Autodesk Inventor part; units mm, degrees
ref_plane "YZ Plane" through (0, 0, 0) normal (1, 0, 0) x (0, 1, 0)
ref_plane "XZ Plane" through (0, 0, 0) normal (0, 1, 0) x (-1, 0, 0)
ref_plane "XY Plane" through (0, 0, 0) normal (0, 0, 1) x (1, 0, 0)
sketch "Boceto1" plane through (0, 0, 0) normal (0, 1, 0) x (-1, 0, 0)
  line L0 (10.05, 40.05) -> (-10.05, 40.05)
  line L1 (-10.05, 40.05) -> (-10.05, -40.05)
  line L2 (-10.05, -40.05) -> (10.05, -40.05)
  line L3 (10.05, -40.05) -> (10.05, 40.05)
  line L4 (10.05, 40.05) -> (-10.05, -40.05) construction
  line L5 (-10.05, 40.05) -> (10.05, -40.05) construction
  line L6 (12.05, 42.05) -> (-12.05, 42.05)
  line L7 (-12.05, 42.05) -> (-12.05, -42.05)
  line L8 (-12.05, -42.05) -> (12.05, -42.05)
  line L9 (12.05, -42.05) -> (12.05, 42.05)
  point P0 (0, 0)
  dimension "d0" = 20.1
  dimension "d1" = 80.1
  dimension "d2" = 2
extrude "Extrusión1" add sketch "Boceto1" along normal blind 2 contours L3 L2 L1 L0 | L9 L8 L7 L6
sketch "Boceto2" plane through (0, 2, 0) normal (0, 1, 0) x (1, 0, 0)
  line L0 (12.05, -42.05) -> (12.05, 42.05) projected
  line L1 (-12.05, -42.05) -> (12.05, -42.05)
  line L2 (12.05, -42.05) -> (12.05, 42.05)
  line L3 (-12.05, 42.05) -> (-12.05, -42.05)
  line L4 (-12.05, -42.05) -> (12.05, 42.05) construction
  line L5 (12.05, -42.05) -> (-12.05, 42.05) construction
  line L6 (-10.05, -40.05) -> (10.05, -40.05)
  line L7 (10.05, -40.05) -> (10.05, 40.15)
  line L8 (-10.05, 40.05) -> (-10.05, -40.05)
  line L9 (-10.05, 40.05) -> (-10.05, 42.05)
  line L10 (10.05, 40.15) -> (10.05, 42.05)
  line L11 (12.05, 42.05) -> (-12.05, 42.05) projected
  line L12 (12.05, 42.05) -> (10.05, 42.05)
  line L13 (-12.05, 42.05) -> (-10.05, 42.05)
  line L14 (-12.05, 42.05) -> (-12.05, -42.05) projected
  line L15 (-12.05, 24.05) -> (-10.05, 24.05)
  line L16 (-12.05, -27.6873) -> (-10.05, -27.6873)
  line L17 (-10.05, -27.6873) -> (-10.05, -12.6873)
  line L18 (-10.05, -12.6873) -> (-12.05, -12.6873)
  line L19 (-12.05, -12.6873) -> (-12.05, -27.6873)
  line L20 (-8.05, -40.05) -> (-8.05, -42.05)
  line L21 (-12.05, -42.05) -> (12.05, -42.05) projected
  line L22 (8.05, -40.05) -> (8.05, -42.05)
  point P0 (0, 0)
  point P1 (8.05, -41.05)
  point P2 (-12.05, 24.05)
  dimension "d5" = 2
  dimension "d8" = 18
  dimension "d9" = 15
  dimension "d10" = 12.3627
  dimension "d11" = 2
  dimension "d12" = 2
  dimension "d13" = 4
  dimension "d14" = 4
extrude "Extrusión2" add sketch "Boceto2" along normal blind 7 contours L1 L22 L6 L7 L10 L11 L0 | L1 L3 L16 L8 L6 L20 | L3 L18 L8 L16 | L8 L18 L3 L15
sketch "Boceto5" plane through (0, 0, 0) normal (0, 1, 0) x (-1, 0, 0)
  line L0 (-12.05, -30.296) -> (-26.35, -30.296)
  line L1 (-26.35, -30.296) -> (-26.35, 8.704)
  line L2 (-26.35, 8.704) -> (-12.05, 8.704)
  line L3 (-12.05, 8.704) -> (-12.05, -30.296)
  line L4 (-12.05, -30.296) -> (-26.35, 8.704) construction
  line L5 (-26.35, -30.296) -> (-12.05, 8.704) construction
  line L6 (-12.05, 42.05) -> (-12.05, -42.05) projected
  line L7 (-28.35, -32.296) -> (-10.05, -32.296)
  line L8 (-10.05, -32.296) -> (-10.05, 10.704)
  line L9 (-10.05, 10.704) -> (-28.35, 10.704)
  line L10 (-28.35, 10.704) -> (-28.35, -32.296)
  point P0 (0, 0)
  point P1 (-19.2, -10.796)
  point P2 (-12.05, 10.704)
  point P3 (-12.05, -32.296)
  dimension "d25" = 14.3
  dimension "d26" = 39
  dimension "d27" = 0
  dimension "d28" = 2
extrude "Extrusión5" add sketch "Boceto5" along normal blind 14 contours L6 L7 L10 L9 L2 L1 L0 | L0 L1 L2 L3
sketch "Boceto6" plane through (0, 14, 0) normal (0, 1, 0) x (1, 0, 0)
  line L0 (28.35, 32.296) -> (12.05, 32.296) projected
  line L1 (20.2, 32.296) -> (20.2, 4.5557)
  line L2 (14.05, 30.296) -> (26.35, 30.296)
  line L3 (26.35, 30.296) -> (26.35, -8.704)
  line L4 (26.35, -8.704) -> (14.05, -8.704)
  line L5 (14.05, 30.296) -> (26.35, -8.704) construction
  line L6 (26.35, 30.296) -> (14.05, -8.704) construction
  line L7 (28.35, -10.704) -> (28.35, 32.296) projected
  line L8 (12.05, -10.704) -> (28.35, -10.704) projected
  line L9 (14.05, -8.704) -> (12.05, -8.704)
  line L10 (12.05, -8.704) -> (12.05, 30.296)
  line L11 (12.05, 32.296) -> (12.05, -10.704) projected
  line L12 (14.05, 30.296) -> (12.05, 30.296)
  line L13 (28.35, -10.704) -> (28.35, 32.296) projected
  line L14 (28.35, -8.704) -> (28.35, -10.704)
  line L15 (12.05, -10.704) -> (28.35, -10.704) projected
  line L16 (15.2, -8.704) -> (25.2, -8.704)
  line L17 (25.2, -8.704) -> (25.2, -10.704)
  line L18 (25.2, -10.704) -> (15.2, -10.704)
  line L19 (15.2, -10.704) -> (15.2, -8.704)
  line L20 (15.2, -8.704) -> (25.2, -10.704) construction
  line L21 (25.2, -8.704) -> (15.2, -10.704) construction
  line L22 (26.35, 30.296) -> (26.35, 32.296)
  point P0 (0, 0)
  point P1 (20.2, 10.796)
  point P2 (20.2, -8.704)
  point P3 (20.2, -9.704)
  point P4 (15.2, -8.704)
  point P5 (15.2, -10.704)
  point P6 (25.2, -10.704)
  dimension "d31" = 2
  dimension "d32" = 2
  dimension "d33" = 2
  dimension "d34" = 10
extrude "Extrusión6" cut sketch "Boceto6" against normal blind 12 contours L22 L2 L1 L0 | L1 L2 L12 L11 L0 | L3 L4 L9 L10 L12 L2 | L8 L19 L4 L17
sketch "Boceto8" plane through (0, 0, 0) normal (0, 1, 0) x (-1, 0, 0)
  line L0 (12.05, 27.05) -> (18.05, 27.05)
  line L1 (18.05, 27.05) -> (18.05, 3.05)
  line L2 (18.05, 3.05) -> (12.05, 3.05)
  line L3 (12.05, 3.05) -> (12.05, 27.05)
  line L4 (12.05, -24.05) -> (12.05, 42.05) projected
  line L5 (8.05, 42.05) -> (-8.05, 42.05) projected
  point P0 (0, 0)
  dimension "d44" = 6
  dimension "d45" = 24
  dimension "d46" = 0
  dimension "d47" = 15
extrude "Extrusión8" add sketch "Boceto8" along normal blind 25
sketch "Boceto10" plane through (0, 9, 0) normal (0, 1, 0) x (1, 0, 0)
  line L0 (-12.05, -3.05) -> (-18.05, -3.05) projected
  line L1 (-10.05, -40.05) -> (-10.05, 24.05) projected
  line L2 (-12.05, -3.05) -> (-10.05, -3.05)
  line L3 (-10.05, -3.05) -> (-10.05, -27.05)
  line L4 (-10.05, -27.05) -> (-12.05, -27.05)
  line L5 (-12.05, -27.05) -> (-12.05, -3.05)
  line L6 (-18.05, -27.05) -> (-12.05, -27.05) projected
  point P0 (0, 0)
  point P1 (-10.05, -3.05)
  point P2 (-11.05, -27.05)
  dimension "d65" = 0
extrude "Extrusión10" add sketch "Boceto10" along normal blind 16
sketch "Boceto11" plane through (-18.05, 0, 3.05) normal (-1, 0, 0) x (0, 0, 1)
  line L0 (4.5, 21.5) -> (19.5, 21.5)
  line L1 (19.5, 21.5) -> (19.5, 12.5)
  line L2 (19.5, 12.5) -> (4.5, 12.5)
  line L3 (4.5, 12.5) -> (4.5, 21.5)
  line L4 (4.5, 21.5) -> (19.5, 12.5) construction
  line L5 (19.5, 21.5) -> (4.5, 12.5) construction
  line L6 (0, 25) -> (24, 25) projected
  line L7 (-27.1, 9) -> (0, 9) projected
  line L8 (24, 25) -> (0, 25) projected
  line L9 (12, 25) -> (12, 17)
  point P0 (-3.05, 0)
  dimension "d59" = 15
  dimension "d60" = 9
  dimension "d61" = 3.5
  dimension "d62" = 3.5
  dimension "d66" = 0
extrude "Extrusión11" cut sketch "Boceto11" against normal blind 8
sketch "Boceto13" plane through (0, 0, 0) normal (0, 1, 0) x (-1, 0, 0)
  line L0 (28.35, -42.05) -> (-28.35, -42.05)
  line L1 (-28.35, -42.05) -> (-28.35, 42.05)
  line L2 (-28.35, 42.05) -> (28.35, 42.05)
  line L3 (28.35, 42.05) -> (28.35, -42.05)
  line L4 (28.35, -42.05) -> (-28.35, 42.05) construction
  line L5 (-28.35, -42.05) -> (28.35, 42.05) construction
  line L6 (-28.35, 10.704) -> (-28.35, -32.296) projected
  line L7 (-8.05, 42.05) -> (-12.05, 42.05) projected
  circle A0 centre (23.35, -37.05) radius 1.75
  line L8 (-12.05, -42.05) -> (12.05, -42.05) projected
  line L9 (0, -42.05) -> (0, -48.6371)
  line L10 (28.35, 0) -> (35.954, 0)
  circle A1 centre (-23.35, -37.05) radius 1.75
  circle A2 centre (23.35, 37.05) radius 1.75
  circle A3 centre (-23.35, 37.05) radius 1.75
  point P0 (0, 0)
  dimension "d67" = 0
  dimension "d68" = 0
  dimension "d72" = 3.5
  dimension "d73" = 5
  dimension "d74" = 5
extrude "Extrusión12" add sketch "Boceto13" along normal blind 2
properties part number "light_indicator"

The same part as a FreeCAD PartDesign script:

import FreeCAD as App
import Part
import Sketcher
from FreeCAD import Vector
Q = App.Units.Quantity


def add_polygon(sketch, points):
    """Adds a closed chain of lines whose ends are joined by coincident constraints."""
    first, n = sketch.GeometryCount, len(points)
    for a, b in zip(points, points[1:] + points[:1]):
        sketch.addGeometry(Part.LineSegment(App.Vector(*a, 0), App.Vector(*b, 0)), False)
    for i in range(n):
        sketch.addConstraint(Sketcher.Constraint("Coincident", first + i, 2, first + (i + 1) % n, 1))

doc = App.newDocument("Part")
body = doc.addObject("PartDesign::Body", "Body")

# Sketch on XZ plane
sketch1 = body.newObject("Sketcher::SketchObject", "Sketch")
sketch1.AttachmentSupport = (doc.getObject("XZ_Plane"), [""])
sketch1.MapMode = "FlatFace"
add_polygon(sketch1, [(-12.05, -42.05), (-12.05, 42.05), (12.05, 42.05), (12.05, -42.05)])  # lines 0-3
sketch1.addConstraint([
    Sketcher.Constraint("Vertical", 0),
    Sketcher.Constraint("Horizontal", 1),
    Sketcher.Constraint("Vertical", 2),
    Sketcher.Constraint("Horizontal", 3),
    Sketcher.Constraint("Symmetric", 0, 2, 2, 2, -1, 1),
    Sketcher.Constraint("DistanceX", 1, 1, 1, 2, Q("24.1 mm")),
    Sketcher.Constraint("DistanceY", 0, 1, 0, 2, Q("84.1 mm")),
])
pad1 = body.newObject("PartDesign::Pad", "Pad")
pad1.Profile = sketch1
pad1.Length = 2
pad1.Reversed = True

# Sketch on XZ plane
sketch2 = body.newObject("Sketcher::SketchObject", "Sketch001")
sketch2.AttachmentSupport = (doc.getObject("XZ_Plane"), [""])
sketch2.MapMode = "FlatFace"
sketch2.AttachmentOffset = App.Placement(Vector(0, 0, -2), App.Rotation())
add_polygon(sketch2, [(8.05, 42.05), (12.05, 42.05), (12.05, -42.05), (10.05, -42.05), (10.05, 40.05), (8.05, 40.05)])  # lines 0-5
add_polygon(sketch2, [(-12.05, 42.05), (-8.05, 42.05), (-8.05, 40.05), (-10.05, 40.05), (-10.05, -24.05), (-12.05, -24.05)])  # lines 6-11
sketch2.addConstraint([
    Sketcher.Constraint("Horizontal", 0),
    Sketcher.Constraint("Vertical", 1),
    Sketcher.Constraint("Horizontal", 2),
    Sketcher.Constraint("Vertical", 3),
    Sketcher.Constraint("Horizontal", 4),
    Sketcher.Constraint("Vertical", 5),
    Sketcher.Constraint("Horizontal", 6),
    Sketcher.Constraint("Vertical", 7),
    Sketcher.Constraint("Horizontal", 8),
    Sketcher.Constraint("Vertical", 9),
    Sketcher.Constraint("Horizontal", 10),
    Sketcher.Constraint("Vertical", 11),
    Sketcher.Constraint("Symmetric", 1, 2, 11, 2, -1, 1),
    Sketcher.Constraint("Symmetric", 5, 2, 6, 2, -2),
    Sketcher.Constraint("Symmetric", 3, 2, 8, 2, -2),
    Sketcher.Constraint("Equal", 2, 4),
    Sketcher.Constraint("Equal", 10, 5),
    Sketcher.Constraint("DistanceX", 0, 1, 0, 2, Q("4 mm")),
    Sketcher.Constraint("DistanceY", 2, 2, 9, 2, Q("18 mm")),
    Sketcher.Constraint("DistanceY", 1, 2, 1, 1, Q("84.1 mm")),
    Sketcher.Constraint("DistanceX", 6, 2, 5, 2, Q("16.1 mm")),
])
pad2 = body.newObject("PartDesign::Pad", "Pad001")
pad2.Profile = sketch2
pad2.Length = 7
pad2.Reversed = True

# Sketch on XZ plane
sketch3 = body.newObject("Sketcher::SketchObject", "Sketch002")
sketch3.AttachmentSupport = (doc.getObject("XZ_Plane"), [""])
sketch3.MapMode = "FlatFace"
add_polygon(sketch3, [(12.05, -32.296), (12.05, 10.704), (28.35, 10.704), (28.35, -32.296)])  # lines 0-3
sketch3.addConstraint([
    Sketcher.Constraint("Vertical", 0),
    Sketcher.Constraint("Horizontal", 1),
    Sketcher.Constraint("Vertical", 2),
    Sketcher.Constraint("Horizontal", 3),
    Sketcher.Constraint("DistanceY", 0, 1, 0, 2, Q("43 mm")),
    Sketcher.Constraint("DistanceX", 1, 1, 1, 2, Q("16.3 mm")),
    Sketcher.Constraint("DistanceX", -1, 1, 0, 2, Q("12.05 mm")),
    Sketcher.Constraint("DistanceY", -1, 1, 0, 2, Q("10.704 mm")),
])
pad3 = body.newObject("PartDesign::Pad", "Pad002")
pad3.Profile = sketch3
pad3.Length = 14
pad3.Reversed = True

# Sketch on XZ plane
sketch4 = body.newObject("Sketcher::SketchObject", "Sketch003")
sketch4.AttachmentSupport = (doc.getObject("XZ_Plane"), [""])
sketch4.MapMode = "FlatFace"
sketch4.AttachmentOffset = App.Placement(Vector(0, 0, -14), App.Rotation())
add_polygon(sketch4, [(26.35, -32.296), (12.05, -32.296), (12.05, 8.704), (15.2, 8.704), (15.2, 10.704), (25.2, 10.704), (25.2, 8.704), (26.35, 8.704)])  # lines 0-7
sketch4.addConstraint([
    Sketcher.Constraint("Horizontal", 0),
    Sketcher.Constraint("Vertical", 1),
    Sketcher.Constraint("Horizontal", 2),
    Sketcher.Constraint("Vertical", 3),
    Sketcher.Constraint("Horizontal", 4),
    Sketcher.Constraint("Vertical", 5),
    Sketcher.Constraint("Horizontal", 6),
    Sketcher.Constraint("Vertical", 7),
    Sketcher.Constraint("Horizontal", 2, 2, 5, 2),
    Sketcher.Constraint("DistanceX", 4, 1, 4, 2, Q("10 mm")),
    Sketcher.Constraint("DistanceY", 3, 1, 3, 2, Q("2 mm")),
    Sketcher.Constraint("DistanceY", 1, 1, 1, 2, Q("41 mm")),
    Sketcher.Constraint("DistanceX", 0, 2, 0, 1, Q("14.3 mm")),
    Sketcher.Constraint("DistanceX", 2, 1, 2, 2, Q("3.15 mm")),
    Sketcher.Constraint("DistanceX", -1, 1, 2, 2, Q("15.2 mm")),
    Sketcher.Constraint("DistanceY", 0, 2, -1, 1, Q("32.296 mm")),
])
pocket1 = body.newObject("PartDesign::Pocket", "Pocket")
pocket1.Profile = sketch4
pocket1.Length = 12
pocket1.Reversed = True

# Sketch on XZ plane
sketch5 = body.newObject("Sketcher::SketchObject", "Sketch004")
sketch5.AttachmentSupport = (doc.getObject("XZ_Plane"), [""])
sketch5.MapMode = "FlatFace"
add_polygon(sketch5, [(-18.05, 27.05), (-12.05, 27.05), (-12.05, 3.05), (-18.05, 3.05)])  # lines 0-3
sketch5.addConstraint([
    Sketcher.Constraint("Horizontal", 0),
    Sketcher.Constraint("Vertical", 1),
    Sketcher.Constraint("Horizontal", 2),
    Sketcher.Constraint("Vertical", 3),
    Sketcher.Constraint("DistanceX", 0, 1, 0, 2, Q("6 mm")),
    Sketcher.Constraint("DistanceY", 1, 2, 1, 1, Q("24 mm")),
    Sketcher.Constraint("DistanceX", 0, 2, -1, 1, Q("12.05 mm")),
    Sketcher.Constraint("DistanceY", -1, 1, 0, 2, Q("27.05 mm")),
])
pad4 = body.newObject("PartDesign::Pad", "Pad003")
pad4.Profile = sketch5
pad4.Length = 25
pad4.Reversed = True

# Sketch on XZ plane
sketch6 = body.newObject("Sketcher::SketchObject", "Sketch005")
sketch6.AttachmentSupport = (doc.getObject("XZ_Plane"), [""])
sketch6.MapMode = "FlatFace"
sketch6.AttachmentOffset = App.Placement(Vector(0, 0, -9), App.Rotation())
add_polygon(sketch6, [(-12.05, 27.05), (-10.05, 27.05), (-10.05, 3.05), (-12.05, 3.05)])  # lines 0-3
sketch6.addConstraint([
    Sketcher.Constraint("Horizontal", 0),
    Sketcher.Constraint("Vertical", 1),
    Sketcher.Constraint("Horizontal", 2),
    Sketcher.Constraint("Vertical", 3),
    Sketcher.Constraint("DistanceX", 0, 1, 0, 2, Q("2 mm")),
    Sketcher.Constraint("DistanceY", 1, 2, 1, 1, Q("24 mm")),
    Sketcher.Constraint("DistanceX", 0, 2, -1, 1, Q("10.05 mm")),
    Sketcher.Constraint("DistanceY", -1, 1, 0, 2, Q("27.05 mm")),
])
pad5 = body.newObject("PartDesign::Pad", "Pad004")
pad5.Profile = sketch6
pad5.Length = 16
pad5.Reversed = True

# Sketch on YZ plane
sketch7 = body.newObject("Sketcher::SketchObject", "Sketch006")
sketch7.AttachmentSupport = (doc.getObject("YZ_Plane"), [""])
sketch7.MapMode = "FlatFace"
sketch7.AttachmentOffset = App.Placement(Vector(0, 0, -18.05), App.Rotation())
add_polygon(sketch7, [(21.5, 22.55), (21.5, 7.55), (12.5, 7.55), (12.5, 22.55)])  # lines 0-3
sketch7.addConstraint([
    Sketcher.Constraint("Vertical", 0),
    Sketcher.Constraint("Horizontal", 1),
    Sketcher.Constraint("Vertical", 2),
    Sketcher.Constraint("Horizontal", 3),
    Sketcher.Constraint("DistanceX", 1, 2, 1, 1, Q("9 mm")),
    Sketcher.Constraint("DistanceY", 0, 2, 0, 1, Q("15 mm")),
    Sketcher.Constraint("DistanceX", -1, 1, 0, 2, Q("21.5 mm")),
    Sketcher.Constraint("DistanceY", -1, 1, 0, 2, Q("7.55 mm")),
])
pocket2 = body.newObject("PartDesign::Pocket", "Pocket001")
pocket2.Profile = sketch7
pocket2.Length = 8
pocket2.Reversed = True

# Sketch on XZ plane
sketch8 = body.newObject("Sketcher::SketchObject", "Sketch007")
sketch8.AttachmentSupport = (doc.getObject("XZ_Plane"), [""])
sketch8.MapMode = "FlatFace"
add_polygon(sketch8, [(28.35, -42.05), (-28.35, -42.05), (-28.35, 42.05), (28.35, 42.05)])  # lines 0-3
sketch8.addGeometry(Part.Circle(Vector(23.35, -37.05, 0), Vector(0, 0, 1), 1.75), False)  # 4
sketch8.addGeometry(Part.Circle(Vector(-23.35, -37.05, 0), Vector(0, 0, 1), 1.75), False)  # 5
sketch8.addGeometry(Part.Circle(Vector(23.35, 37.05, 0), Vector(0, 0, 1), 1.75), False)  # 6
sketch8.addGeometry(Part.Circle(Vector(-23.35, 37.05, 0), Vector(0, 0, 1), 1.75), False)  # 7
sketch8.addConstraint([
    Sketcher.Constraint("Horizontal", 0),
    Sketcher.Constraint("Vertical", 1),
    Sketcher.Constraint("Horizontal", 2),
    Sketcher.Constraint("Vertical", 3),
    Sketcher.Constraint("Equal", 4, 5),
    Sketcher.Constraint("Equal", 5, 6),
    Sketcher.Constraint("Equal", 6, 7),
    Sketcher.Constraint("Symmetric", 5, 3, 6, 3, -1, 1),
    Sketcher.Constraint("Symmetric", 4, 3, 7, 3, -1, 1),
    Sketcher.Constraint("Symmetric", 0, 2, 2, 2, -1, 1),
    Sketcher.Constraint("Symmetric", 4, 3, 5, 3, -2),
    Sketcher.Constraint("Diameter", 4, Q("3.5 mm")),
    Sketcher.Constraint("DistanceX", 0, 2, 5, 3, Q("5 mm")),
    Sketcher.Constraint("DistanceY", 0, 2, 5, 3, Q("5 mm")),
    Sketcher.Constraint("DistanceX", 0, 2, 0, 1, Q("56.7 mm")),
    Sketcher.Constraint("DistanceY", 1, 1, 1, 2, Q("84.1 mm")),
])
pad6 = body.newObject("PartDesign::Pad", "Pad005")
pad6.Profile = sketch8
pad6.Length = 2
pad6.Reversed = True

doc.recompute()
